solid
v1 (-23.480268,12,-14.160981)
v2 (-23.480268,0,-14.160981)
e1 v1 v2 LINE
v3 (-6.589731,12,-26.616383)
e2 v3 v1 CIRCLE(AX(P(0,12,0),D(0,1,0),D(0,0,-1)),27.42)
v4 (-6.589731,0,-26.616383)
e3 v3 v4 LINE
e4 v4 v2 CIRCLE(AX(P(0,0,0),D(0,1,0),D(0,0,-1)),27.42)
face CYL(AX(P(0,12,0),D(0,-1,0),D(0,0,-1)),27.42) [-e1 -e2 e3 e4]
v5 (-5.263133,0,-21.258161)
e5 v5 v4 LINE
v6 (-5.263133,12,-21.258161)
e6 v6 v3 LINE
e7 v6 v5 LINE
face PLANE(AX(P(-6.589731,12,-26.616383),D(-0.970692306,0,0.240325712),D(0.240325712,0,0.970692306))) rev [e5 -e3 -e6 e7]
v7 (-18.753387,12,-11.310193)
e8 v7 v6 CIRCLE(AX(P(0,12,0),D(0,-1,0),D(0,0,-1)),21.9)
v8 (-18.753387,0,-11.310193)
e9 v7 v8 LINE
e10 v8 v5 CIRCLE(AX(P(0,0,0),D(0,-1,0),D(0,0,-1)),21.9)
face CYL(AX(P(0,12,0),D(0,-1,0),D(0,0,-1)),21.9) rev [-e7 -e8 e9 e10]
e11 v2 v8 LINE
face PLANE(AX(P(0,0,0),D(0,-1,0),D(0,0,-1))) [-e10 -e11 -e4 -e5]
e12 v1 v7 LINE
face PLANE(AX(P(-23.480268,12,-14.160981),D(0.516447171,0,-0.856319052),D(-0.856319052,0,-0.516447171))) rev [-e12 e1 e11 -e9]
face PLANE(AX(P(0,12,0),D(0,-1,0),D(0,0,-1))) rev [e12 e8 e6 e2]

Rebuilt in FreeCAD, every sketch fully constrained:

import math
import FreeCAD as App
import Part
import Sketcher
from FreeCAD import Vector

doc = App.newDocument("Part")
body = doc.addObject("PartDesign::Body", "Body")

# Sketch on XZ plane
sketch1 = body.newObject("Sketcher::SketchObject", "Sketch")
sketch1.AttachmentSupport = (doc.getObject("XZ_Plane"), [""])
sketch1.MapMode = "FlatFace"
sketch1.addGeometry([
    Part.LineSegment(Vector(-23, -14, 0), Vector(-19, -11, 0)),
    Part.ArcOfCircle(Part.Circle(Vector(0, 0, 0), Vector(0, 0, 1), 22), math.radians(-149), math.radians(-104)),
    Part.LineSegment(Vector(-5, -21, 0), Vector(-7, -27, 0)),
    Part.ArcOfCircle(Part.Circle(Vector(0, 0, 0), Vector(0, 0, 1), 27), math.radians(-149), math.radians(-104)),
], False)
sketch1.addConstraint([
    Sketcher.Constraint("Coincident", 0, 2, 1, 1),
    Sketcher.Constraint("Coincident", 1, 2, 2, 1),
    Sketcher.Constraint("Coincident", 2, 2, 3, 2),
    Sketcher.Constraint("Coincident", 3, 1, 0, 1),
    Sketcher.Constraint("Coincident", 1, 3, -1, 1),
    Sketcher.Constraint("Coincident", 3, 3, -1, 1),
    Sketcher.Constraint("Radius", 1, 21.9),
    Sketcher.Constraint("Radius", 3, 27.42),
    Sketcher.Constraint("DistanceY", 2, 2, 3, 1, 12.455402),
    Sketcher.Constraint("DistanceY", 1, 2, -1, 1, 21.258161),
    Sketcher.Constraint("DistanceX", 2, 2, -1, 1, 6.589731),
    Sketcher.Constraint("DistanceY", 1, 2, 0, 2, 9.947968),
])
pad1 = body.newObject("PartDesign::Pad", "Pad")
pad1.Profile = sketch1
pad1.Length = 12
pad1.Reversed = True

doc.recompute()
